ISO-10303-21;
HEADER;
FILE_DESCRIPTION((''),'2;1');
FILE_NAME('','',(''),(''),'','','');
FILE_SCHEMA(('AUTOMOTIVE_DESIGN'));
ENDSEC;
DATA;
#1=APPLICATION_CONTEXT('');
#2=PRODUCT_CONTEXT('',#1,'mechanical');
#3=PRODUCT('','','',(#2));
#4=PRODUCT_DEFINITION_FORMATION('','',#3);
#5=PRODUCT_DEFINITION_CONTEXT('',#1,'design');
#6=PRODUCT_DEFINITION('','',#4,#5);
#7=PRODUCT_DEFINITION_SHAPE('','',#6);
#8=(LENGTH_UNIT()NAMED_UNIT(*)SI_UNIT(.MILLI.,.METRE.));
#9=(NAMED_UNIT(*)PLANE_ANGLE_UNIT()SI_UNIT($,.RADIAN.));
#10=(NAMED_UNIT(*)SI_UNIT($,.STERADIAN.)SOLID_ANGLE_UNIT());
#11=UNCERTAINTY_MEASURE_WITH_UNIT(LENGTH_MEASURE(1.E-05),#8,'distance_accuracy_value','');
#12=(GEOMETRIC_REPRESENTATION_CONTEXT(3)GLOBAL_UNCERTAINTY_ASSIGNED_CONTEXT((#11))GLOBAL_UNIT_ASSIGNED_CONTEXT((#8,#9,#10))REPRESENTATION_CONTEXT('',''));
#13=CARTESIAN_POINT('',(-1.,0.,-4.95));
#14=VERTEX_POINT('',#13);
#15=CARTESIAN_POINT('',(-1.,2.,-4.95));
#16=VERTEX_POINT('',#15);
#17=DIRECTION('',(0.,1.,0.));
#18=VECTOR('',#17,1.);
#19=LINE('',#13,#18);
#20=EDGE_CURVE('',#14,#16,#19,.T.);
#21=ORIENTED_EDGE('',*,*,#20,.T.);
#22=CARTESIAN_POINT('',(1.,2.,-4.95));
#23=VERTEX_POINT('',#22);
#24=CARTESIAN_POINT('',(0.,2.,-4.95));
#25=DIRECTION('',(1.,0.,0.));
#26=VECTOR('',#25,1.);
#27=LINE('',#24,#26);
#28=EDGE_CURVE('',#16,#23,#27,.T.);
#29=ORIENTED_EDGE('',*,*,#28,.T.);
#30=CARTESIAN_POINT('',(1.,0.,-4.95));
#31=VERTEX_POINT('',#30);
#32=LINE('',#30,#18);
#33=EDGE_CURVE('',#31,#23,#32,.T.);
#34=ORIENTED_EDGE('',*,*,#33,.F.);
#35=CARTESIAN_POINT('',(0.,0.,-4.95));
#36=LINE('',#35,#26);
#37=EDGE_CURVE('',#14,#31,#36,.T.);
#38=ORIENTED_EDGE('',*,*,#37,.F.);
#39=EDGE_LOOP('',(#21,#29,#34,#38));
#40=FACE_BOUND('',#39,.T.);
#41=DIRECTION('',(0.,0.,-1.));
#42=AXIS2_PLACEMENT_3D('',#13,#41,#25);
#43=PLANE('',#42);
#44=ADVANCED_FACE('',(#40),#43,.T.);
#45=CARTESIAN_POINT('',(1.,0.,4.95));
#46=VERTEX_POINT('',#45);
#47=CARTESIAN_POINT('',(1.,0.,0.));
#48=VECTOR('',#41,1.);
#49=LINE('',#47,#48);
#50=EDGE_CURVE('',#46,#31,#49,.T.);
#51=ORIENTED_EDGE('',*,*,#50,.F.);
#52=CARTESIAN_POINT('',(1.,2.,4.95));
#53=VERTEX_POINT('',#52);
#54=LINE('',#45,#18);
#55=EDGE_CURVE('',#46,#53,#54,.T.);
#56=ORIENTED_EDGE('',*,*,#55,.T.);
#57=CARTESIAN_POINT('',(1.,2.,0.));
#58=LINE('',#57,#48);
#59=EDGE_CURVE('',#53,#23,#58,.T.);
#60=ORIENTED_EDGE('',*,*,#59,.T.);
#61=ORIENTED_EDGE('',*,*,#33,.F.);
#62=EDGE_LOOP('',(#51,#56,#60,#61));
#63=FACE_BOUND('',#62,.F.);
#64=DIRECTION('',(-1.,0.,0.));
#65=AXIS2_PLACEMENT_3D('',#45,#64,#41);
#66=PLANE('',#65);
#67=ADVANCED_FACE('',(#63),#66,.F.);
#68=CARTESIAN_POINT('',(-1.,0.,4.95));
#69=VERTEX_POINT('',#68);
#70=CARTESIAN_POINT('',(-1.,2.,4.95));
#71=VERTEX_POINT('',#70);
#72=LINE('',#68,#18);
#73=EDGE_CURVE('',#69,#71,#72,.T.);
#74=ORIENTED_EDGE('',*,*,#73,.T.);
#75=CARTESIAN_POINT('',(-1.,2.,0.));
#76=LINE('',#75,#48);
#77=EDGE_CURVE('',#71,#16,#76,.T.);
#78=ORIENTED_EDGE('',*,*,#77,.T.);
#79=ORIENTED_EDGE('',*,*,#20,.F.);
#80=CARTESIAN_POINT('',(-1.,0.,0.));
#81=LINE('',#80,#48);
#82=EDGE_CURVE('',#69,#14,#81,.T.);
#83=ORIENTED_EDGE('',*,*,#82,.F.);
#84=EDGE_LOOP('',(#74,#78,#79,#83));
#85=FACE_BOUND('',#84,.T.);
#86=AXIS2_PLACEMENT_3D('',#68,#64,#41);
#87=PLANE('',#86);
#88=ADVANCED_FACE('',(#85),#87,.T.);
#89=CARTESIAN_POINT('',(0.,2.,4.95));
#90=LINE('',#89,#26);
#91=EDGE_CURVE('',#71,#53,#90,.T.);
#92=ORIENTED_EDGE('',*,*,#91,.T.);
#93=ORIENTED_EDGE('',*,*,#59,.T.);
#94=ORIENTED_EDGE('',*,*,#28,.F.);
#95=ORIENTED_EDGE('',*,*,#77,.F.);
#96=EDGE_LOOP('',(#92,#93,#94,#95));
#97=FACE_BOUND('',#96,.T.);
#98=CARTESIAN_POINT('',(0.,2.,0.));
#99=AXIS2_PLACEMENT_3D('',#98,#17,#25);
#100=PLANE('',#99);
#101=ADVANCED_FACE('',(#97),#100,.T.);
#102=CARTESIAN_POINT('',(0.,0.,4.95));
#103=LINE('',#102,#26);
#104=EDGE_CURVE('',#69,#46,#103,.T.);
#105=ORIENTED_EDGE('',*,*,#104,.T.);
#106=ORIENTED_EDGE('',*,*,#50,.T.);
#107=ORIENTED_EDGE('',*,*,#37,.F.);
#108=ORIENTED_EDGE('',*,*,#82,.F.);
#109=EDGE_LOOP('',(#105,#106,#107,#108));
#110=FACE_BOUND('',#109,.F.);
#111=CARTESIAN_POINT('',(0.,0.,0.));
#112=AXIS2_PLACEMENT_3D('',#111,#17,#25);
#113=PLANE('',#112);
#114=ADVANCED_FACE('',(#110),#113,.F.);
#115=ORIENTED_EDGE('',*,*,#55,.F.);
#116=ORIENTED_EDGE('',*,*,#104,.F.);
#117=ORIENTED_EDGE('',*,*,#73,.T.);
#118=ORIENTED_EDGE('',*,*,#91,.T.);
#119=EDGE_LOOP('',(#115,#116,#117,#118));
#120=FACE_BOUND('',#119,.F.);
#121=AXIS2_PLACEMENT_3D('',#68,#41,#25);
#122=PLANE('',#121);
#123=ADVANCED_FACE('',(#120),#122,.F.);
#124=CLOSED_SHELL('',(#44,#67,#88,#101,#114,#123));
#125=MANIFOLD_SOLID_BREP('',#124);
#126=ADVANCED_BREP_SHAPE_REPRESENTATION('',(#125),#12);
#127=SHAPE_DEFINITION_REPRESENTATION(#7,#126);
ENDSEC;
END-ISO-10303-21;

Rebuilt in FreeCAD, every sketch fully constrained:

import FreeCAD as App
import Part
import Sketcher

V = App.Vector
Q = App.Units.Quantity


def add_polygon(sketch, points):
    """Adds a closed chain of lines whose ends are joined by coincident constraints."""
    first, n = sketch.GeometryCount, len(points)
    for a, b in zip(points, points[1:] + points[:1]):
        sketch.addGeometry(Part.LineSegment(App.Vector(*a, 0), App.Vector(*b, 0)), False)
    for i in range(n):
        sketch.addConstraint(Sketcher.Constraint("Coincident", first + i, 2, first + (i + 1) % n, 1))

doc = App.newDocument("Part")
body = doc.addObject("PartDesign::Body", "Body")

# Sketch on XZ plane
sketch1 = doc.addObject("Sketcher::SketchObject", "Sketch")
body.addObject(sketch1)
sketch1.AttachmentSupport = (doc.XZ_Plane, [""])
sketch1.MapMode = "FlatFace"
add_polygon(sketch1, [(-1, -5), (-1, 5), (1, 5), (1, -5)])  # lines 0-3
sketch1.addConstraint([
    Sketcher.Constraint("Vertical", 0),
    Sketcher.Constraint("Horizontal", 1),
    Sketcher.Constraint("Vertical", 2),
    Sketcher.Constraint("Horizontal", 3),
    Sketcher.Constraint("Symmetric", 0, 2, 2, 2, -1, 1),
    Sketcher.Constraint("DistanceX", 1, 1, 1, 2, Q("2 mm")),
    Sketcher.Constraint("DistanceY", 0, 1, 0, 2, Q("9.9 mm")),
])
pad1 = doc.addObject("PartDesign::Pad", "Pad")
body.addObject(pad1)
pad1.Profile = sketch1
pad1.Length = 2
pad1.Reversed = True

doc.recompute()
